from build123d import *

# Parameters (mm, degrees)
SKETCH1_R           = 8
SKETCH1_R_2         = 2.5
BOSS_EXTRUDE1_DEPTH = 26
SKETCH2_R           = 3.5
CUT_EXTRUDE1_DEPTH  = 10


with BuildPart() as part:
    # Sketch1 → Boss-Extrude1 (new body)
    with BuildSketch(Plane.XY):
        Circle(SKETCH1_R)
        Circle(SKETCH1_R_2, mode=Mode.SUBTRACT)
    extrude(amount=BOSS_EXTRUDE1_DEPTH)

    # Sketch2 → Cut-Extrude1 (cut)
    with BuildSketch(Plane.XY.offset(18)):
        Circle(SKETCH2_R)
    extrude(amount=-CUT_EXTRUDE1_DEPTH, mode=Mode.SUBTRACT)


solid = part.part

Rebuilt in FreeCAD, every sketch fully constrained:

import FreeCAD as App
import Part
import Sketcher
from FreeCAD import Vector
Q = App.Units.Quantity

doc = App.newDocument("Part")
params = doc.addObject("Spreadsheet::Sheet", "Params")
for row, (alias, value) in enumerate([
    ("sketch1_diameter", "16 mm"),
    ("sketch1_diameter2", "5 mm"),
    ("pad1_length", "26 mm"),
    ("sketch2_diameter", "7 mm"),
    ("pocket1_length", "10 mm"),
], start=1):
    params.set(f"A{row}", alias)
    params.set(f"B{row}", "=" + value)
    params.setAlias(f"B{row}", alias)

body = doc.addObject("PartDesign::Body", "Body")

# Sketch on XY plane
sketch1 = doc.addObject("Sketcher::SketchObject", "Sketch")
body.addObject(sketch1)
sketch1.AttachmentSupport = (doc.XY_Plane, [""])
sketch1.MapMode = "FlatFace"
sketch1.addGeometry([
    Part.Circle(Vector(0, 0, 0), Vector(0, 0, 1), 8),
    Part.Circle(Vector(0, 0, 0), Vector(0, 0, 1), 2.5),
], False)
sketch1.addConstraint([
    Sketcher.Constraint("Coincident", 0, 3, -1, 1),
    Sketcher.Constraint("Coincident", 1, 3, -1, 1),
    Sketcher.Constraint("Diameter", 0, Q("16 mm")),
    Sketcher.Constraint("Diameter", 1, Q("5 mm")),
])
sketch1.setExpression("Constraints[2]", "Params.sketch1_diameter")
sketch1.setExpression("Constraints[3]", "Params.sketch1_diameter2")
pad1 = doc.addObject("PartDesign::Pad", "Pad")
body.addObject(pad1)
pad1.Profile = sketch1
pad1.setExpression("Length", "Params.pad1_length")

# Sketch on XY plane
sketch2 = doc.addObject("Sketcher::SketchObject", "Sketch001")
body.addObject(sketch2)
sketch2.AttachmentSupport = (doc.XY_Plane, [""])
sketch2.MapMode = "FlatFace"
sketch2.AttachmentOffset = App.Placement(Vector(0, 0, 18), App.Rotation())
sketch2.addGeometry(Part.Circle(Vector(0, 0, 0), Vector(0, 0, 1), 3.5), False)
sketch2.addConstraint([
    Sketcher.Constraint("Coincident", 0, 3, -1, 1),
    Sketcher.Constraint("Diameter", 0, Q("7 mm")),
])
sketch2.setExpression("Constraints[1]", "Params.sketch2_diameter")
pocket1 = doc.addObject("PartDesign::Pocket", "Pocket")
body.addObject(pocket1)
pocket1.Profile = sketch2
pocket1.setExpression("Length", "Params.pocket1_length")

doc.recompute()
